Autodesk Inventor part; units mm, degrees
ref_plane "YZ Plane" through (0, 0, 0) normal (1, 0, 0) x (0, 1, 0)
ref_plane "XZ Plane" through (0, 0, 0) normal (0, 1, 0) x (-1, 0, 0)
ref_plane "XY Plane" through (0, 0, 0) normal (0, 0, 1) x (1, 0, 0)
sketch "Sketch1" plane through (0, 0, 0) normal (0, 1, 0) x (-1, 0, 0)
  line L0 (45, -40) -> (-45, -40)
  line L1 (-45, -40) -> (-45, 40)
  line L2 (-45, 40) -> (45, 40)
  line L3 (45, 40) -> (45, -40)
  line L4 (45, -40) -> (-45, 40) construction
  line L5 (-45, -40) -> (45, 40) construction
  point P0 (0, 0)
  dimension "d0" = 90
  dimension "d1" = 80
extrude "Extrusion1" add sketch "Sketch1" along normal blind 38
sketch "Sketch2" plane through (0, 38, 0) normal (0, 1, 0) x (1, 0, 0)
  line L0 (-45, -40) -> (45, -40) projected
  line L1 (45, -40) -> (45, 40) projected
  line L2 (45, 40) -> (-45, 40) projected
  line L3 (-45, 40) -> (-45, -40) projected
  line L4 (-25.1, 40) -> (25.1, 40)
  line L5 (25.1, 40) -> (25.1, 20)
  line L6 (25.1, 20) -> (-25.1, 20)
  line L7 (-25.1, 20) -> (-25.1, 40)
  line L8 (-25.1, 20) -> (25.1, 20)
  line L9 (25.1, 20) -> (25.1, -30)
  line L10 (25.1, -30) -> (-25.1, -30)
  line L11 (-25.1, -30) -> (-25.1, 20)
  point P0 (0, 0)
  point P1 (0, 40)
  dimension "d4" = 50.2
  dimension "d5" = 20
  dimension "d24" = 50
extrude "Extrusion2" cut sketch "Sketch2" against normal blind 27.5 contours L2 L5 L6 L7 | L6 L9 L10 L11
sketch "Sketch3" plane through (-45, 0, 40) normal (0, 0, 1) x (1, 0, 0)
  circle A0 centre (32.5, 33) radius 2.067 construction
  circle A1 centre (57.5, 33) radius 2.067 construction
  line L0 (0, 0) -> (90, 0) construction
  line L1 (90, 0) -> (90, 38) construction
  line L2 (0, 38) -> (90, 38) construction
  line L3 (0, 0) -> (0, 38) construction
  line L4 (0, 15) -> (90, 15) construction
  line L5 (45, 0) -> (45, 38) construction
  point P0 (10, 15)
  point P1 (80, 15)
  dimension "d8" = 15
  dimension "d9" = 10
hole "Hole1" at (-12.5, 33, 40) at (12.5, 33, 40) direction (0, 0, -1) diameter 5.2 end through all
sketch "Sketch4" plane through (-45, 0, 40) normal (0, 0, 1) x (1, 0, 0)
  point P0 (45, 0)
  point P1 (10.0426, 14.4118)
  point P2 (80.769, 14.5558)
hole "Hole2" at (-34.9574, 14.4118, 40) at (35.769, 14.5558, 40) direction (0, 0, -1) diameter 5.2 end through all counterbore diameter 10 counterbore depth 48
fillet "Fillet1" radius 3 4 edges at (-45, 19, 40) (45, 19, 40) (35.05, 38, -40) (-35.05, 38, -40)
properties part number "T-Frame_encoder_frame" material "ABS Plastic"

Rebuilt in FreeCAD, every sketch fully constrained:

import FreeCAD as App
import Part
import Sketcher
from FreeCAD import Vector


def edges_at(feature, points):
    """Names of the edges that pass closest to the given points."""
    edges = feature.Shape.Edges
    near = lambda p: min(range(len(edges)), key=lambda i: edges[i].distToShape(Part.Vertex(*p))[0])
    return sorted({f"Edge{near(p) + 1}" for p in points})


def add_polygon(sketch, points):
    """Adds a closed chain of lines whose ends are joined by coincident constraints."""
    first, n = sketch.GeometryCount, len(points)
    for a, b in zip(points, points[1:] + points[:1]):
        sketch.addGeometry(Part.LineSegment(App.Vector(*a, 0), App.Vector(*b, 0)), False)
    for i in range(n):
        sketch.addConstraint(Sketcher.Constraint("Coincident", first + i, 2, first + (i + 1) % n, 1))

doc = App.newDocument("Part")
params = doc.addObject("Spreadsheet::Sheet", "Params")
for row, (alias, value) in enumerate([
    ("sketch1_width", "90 mm"),
    ("sketch1_height", "80 mm"),
    ("pad1_length", "38 mm"),
    ("sketch2_width", "50.2 mm"),
    ("sketch2_height", "70 mm"),
    ("pocket1_length", "27.5 mm"),
    ("sketch3_diameter", "5.2 mm"),
    ("hole_diameter", "5.2 mm"),
    ("sketch4_diameter", "5.2 mm"),
    ("hole2_diameter", "5.2 mm"),
    ("hole2_cbore_diameter", "10 mm"),
    ("hole2_cbore_depth", "48 mm"),
    ("fillet_radius", "3 mm"),
], start=1):
    params.set(f"A{row}", alias)
    params.set(f"B{row}", "=" + value)
    params.setAlias(f"B{row}", alias)

body = doc.addObject("PartDesign::Body", "Body")

sketch1 = body.newObject("Sketcher::SketchObject", "Sketch")
sketch1.AttachmentSupport = (doc.getObject("XZ_Plane"), [""])
sketch1.MapMode = "FlatFace"
add_polygon(sketch1, [(45, -40), (-45, -40), (-45, 40), (45, 40)])
sketch1.addConstraint(Sketcher.Constraint("Horizontal", 0))
sketch1.addConstraint(Sketcher.Constraint("Vertical", 1))
sketch1.addConstraint(Sketcher.Constraint("Horizontal", 2))
sketch1.addConstraint(Sketcher.Constraint("Vertical", 3))
sketch1.addConstraint(Sketcher.Constraint("Symmetric", 0, 2, 2, 2, -1, 1))
sketch1.addConstraint(Sketcher.Constraint("DistanceX", 0, 2, 0, 1, 90.0))
sketch1.addConstraint(Sketcher.Constraint("DistanceY", 1, 1, 1, 2, 80.0))
sketch1.setExpression("Constraints[9]", "Params.sketch1_width")
sketch1.setExpression("Constraints[10]", "Params.sketch1_height")
pad1 = body.newObject("PartDesign::Pad", "Pad")
pad1.Profile = sketch1
pad1.setExpression("Length", "Params.pad1_length")
pad1.Reversed = True

sketch2 = body.newObject("Sketcher::SketchObject", "Sketch001")
sketch2.AttachmentSupport = (doc.getObject("XZ_Plane"), [""])
sketch2.MapMode = "FlatFace"
sketch2.AttachmentOffset = App.Placement(Vector(0, 0, -38), App.Rotation())
add_polygon(sketch2, [(25, -40), (-25, -40), (-25, 30), (25, 30)])
sketch2.addConstraint(Sketcher.Constraint("Horizontal", 0))
sketch2.addConstraint(Sketcher.Constraint("Vertical", 1))
sketch2.addConstraint(Sketcher.Constraint("Horizontal", 2))
sketch2.addConstraint(Sketcher.Constraint("Vertical", 3))
sketch2.addConstraint(Sketcher.Constraint("DistanceX", 0, 2, 0, 1, 50.2))
sketch2.addConstraint(Sketcher.Constraint("DistanceY", 1, 1, 1, 2, 70.0))
sketch2.addConstraint(Sketcher.Constraint("DistanceY", 0, 2, -1, 1, 40.0))
sketch2.addConstraint(Sketcher.Constraint("DistanceX", 0, 2, -1, 1, 25.1))
sketch2.setExpression("Constraints[8]", "Params.sketch2_width")
sketch2.setExpression("Constraints[9]", "Params.sketch2_height")
pocket1 = body.newObject("PartDesign::Pocket", "Pocket")
pocket1.Profile = sketch2
pocket1.setExpression("Length", "Params.pocket1_length")
pocket1.Reversed = True

sketch3 = body.newObject("Sketcher::SketchObject", "Sketch002")
sketch3.AttachmentSupport = (doc.getObject("XY_Plane"), [""])
sketch3.MapMode = "FlatFace"
sketch3.AttachmentOffset = App.Placement(Vector(0, 0, 40), App.Rotation())
sketch3.addGeometry(Part.Circle(Vector(-12.5, 33, 0), Vector(0, 0, 1), 2.6), False)
sketch3.addGeometry(Part.Circle(Vector(12.5, 33, 0), Vector(0, 0, 1), 2.6), False)
sketch3.addConstraint(Sketcher.Constraint("Equal", 0, 1))
sketch3.addConstraint(Sketcher.Constraint("Symmetric", 0, 3, 1, 3, -2))
sketch3.addConstraint(Sketcher.Constraint("Diameter", 0, 5.2))
sketch3.addConstraint(Sketcher.Constraint("DistanceY", -1, 1, 0, 3, 33.0))
sketch3.addConstraint(Sketcher.Constraint("DistanceX", 0, 3, 1, 3, 25.0))
sketch3.setExpression("Constraints[2]", "Params.sketch3_diameter")
doc.recompute()
hole = body.newObject("PartDesign::Hole", "Hole")
hole.Profile = sketch3
hole.ThreadType = "None"
hole.setExpression("Diameter", "Params.hole_diameter")
hole.DepthType = "ThroughAll"

sketch4 = body.newObject("Sketcher::SketchObject", "Sketch003")
sketch4.AttachmentSupport = (doc.getObject("XY_Plane"), [""])
sketch4.MapMode = "FlatFace"
sketch4.AttachmentOffset = App.Placement(Vector(0, 0, 40), App.Rotation())
sketch4.addGeometry(Part.Circle(Vector(-35, 14.4, 0), Vector(0, 0, 1), 2.6), False)
sketch4.addGeometry(Part.Circle(Vector(35.8, 14.6, 0), Vector(0, 0, 1), 2.6), False)
sketch4.addConstraint(Sketcher.Constraint("Equal", 0, 1))
sketch4.addConstraint(Sketcher.Constraint("Diameter", 0, 5.2))
sketch4.addConstraint(Sketcher.Constraint("DistanceX", -1, 1, 1, 3, 35.769))
sketch4.addConstraint(Sketcher.Constraint("DistanceY", 0, 3, 1, 3, 0.144))
sketch4.addConstraint(Sketcher.Constraint("DistanceX", 0, 3, -1, 1, 34.9574))
sketch4.addConstraint(Sketcher.Constraint("DistanceY", -1, 1, 0, 3, 14.4118))
sketch4.setExpression("Constraints[1]", "Params.sketch4_diameter")
doc.recompute()
hole2 = body.newObject("PartDesign::Hole", "Hole001")
hole2.Profile = sketch4
hole2.ThreadType = "None"
hole2.setExpression("Diameter", "Params.hole2_diameter")
hole2.DepthType = "ThroughAll"
hole2.HoleCutType = "Counterbore"
hole2.setExpression("HoleCutDiameter", "Params.hole2_cbore_diameter")
hole2.setExpression("HoleCutDepth", "Params.hole2_cbore_depth")
doc.recompute()

fillet = body.newObject("PartDesign::Fillet", "Fillet")
fillet.Base = (hole2, edges_at(hole2, [
    (-45, 19, 40),
    (45, 19, 40),
    (35.05, 38, -40),
    (-35.05, 38, -40),
]))
fillet.setExpression("Radius", "Params.fillet_radius")

doc.recompute()
